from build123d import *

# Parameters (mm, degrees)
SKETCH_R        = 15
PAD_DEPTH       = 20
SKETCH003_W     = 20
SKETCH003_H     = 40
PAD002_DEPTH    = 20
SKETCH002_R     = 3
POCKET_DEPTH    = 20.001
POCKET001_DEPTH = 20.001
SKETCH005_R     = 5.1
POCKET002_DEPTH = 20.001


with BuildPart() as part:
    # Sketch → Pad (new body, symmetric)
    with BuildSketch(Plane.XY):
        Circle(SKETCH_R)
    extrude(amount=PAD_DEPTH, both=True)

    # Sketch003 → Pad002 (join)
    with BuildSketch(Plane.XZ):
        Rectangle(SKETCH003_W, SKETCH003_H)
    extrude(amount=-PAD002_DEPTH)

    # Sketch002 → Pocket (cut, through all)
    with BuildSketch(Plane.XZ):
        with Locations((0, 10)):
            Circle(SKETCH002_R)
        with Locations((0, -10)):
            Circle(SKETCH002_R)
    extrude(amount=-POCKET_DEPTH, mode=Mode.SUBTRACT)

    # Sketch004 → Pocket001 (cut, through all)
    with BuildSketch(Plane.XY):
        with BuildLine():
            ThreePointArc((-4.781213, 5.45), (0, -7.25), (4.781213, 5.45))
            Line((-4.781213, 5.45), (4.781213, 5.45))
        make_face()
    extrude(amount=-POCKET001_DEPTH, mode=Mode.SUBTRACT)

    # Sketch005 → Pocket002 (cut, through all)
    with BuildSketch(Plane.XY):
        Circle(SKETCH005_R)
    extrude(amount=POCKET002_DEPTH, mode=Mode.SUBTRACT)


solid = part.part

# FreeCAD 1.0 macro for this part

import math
import FreeCAD as App
import Part
import Sketcher
from FreeCAD import Vector
Q = App.Units.Quantity


def add_polygon(sketch, points):
    """Adds a closed chain of lines whose ends are joined by coincident constraints."""
    first, n = sketch.GeometryCount, len(points)
    for a, b in zip(points, points[1:] + points[:1]):
        sketch.addGeometry(Part.LineSegment(App.Vector(*a, 0), App.Vector(*b, 0)), False)
    for i in range(n):
        sketch.addConstraint(Sketcher.Constraint("Coincident", first + i, 2, first + (i + 1) % n, 1))

doc = App.newDocument("Part")
body = doc.addObject("PartDesign::Body", "Body")

# Sketch on XY plane
sketch1 = body.newObject("Sketcher::SketchObject", "Sketch")
sketch1.AttachmentSupport = (doc.getObject("XY_Plane"), [""])
sketch1.MapMode = "FlatFace"
sketch1.addGeometry(Part.Circle(Vector(0, 0, 0), Vector(0, 0, 1), 15), False)
sketch1.addConstraint(Sketcher.Constraint("Coincident", 0, 3, -1, 1))
sketch1.addConstraint(Sketcher.Constraint("Diameter", 0, Q("30 mm")))
pad1 = body.newObject("PartDesign::Pad", "Pad")
pad1.Profile = sketch1
pad1.Length = 40
pad1.Midplane = True

# Sketch on XZ plane
sketch2 = body.newObject("Sketcher::SketchObject", "Sketch001")
sketch2.AttachmentSupport = (doc.getObject("XZ_Plane"), [""])
sketch2.MapMode = "FlatFace"
add_polygon(sketch2, [(-10, 20), (-10, -20), (10, -20), (10, 20)])  # lines 0-3
sketch2.addConstraint(Sketcher.Constraint("Vertical", 0))
sketch2.addConstraint(Sketcher.Constraint("Horizontal", 1))
sketch2.addConstraint(Sketcher.Constraint("Vertical", 2))
sketch2.addConstraint(Sketcher.Constraint("Horizontal", 3))
sketch2.addConstraint(Sketcher.Constraint("Symmetric", 0, 2, 2, 2, -1, 1))
sketch2.addConstraint(Sketcher.Constraint("DistanceX", 1, 1, 1, 2, Q("20 mm")))
sketch2.addConstraint(Sketcher.Constraint("DistanceY", 0, 2, 0, 1, Q("40 mm")))
pad2 = body.newObject("PartDesign::Pad", "Pad001")
pad2.Profile = sketch2
pad2.Length = 20
pad2.Reversed = True

# Sketch on XZ plane
sketch3 = body.newObject("Sketcher::SketchObject", "Sketch002")
sketch3.AttachmentSupport = (doc.getObject("XZ_Plane"), [""])
sketch3.MapMode = "FlatFace"
sketch3.addGeometry(Part.Circle(Vector(0, 10, 0), Vector(0, 0, 1), 3), False)
sketch3.addGeometry(Part.Circle(Vector(0, -10, 0), Vector(0, 0, 1), 3), False)
sketch3.addConstraint(Sketcher.Constraint("Equal", 0, 1))
sketch3.addConstraint(Sketcher.Constraint("Symmetric", 0, 3, 1, 3, -1, 1))
sketch3.addConstraint(Sketcher.Constraint("PointOnObject", 0, 3, -2))
sketch3.addConstraint(Sketcher.Constraint("Diameter", 0, Q("6 mm")))
sketch3.addConstraint(Sketcher.Constraint("DistanceY", -1, 1, 0, 3, Q("10 mm")))
pocket1 = body.newObject("PartDesign::Pocket", "Pocket")
pocket1.Profile = sketch3
pocket1.Type = "ThroughAll"

# Sketch on XY plane
sketch4 = body.newObject("Sketcher::SketchObject", "Sketch003")
sketch4.AttachmentSupport = (doc.getObject("XY_Plane"), [""])
sketch4.MapMode = "FlatFace"
sketch4.addGeometry(Part.ArcOfCircle(Part.Circle(Vector(0, 0, 0), Vector(0, 0, 1), 7), math.radians(131), math.radians(409)), False)
sketch4.addGeometry(Part.LineSegment(Vector(5, 5, 0), Vector(-5, 5, 0)), False)
sketch4.addConstraint(Sketcher.Constraint("Coincident", 0, 1, 1, 2))
sketch4.addConstraint(Sketcher.Constraint("Coincident", 1, 1, 0, 2))
sketch4.addConstraint(Sketcher.Constraint("Horizontal", 1))
sketch4.addConstraint(Sketcher.Constraint("Coincident", 0, 3, -1, 1))
sketch4.addConstraint(Sketcher.Constraint("Radius", 0, Q("7.25 mm")))
sketch4.addConstraint(Sketcher.Constraint("DistanceY", -1, 1, 0, 1, Q("5.45 mm")))
pocket2 = body.newObject("PartDesign::Pocket", "Pocket001")
pocket2.Profile = sketch4
pocket2.Type = "ThroughAll"

# Sketch on XY plane
sketch5 = body.newObject("Sketcher::SketchObject", "Sketch004")
sketch5.AttachmentSupport = (doc.getObject("XY_Plane"), [""])
sketch5.MapMode = "FlatFace"
sketch5.addGeometry(Part.Circle(Vector(0, 0, 0), Vector(0, 0, 1), 5), False)
sketch5.addConstraint(Sketcher.Constraint("Coincident", 0, 3, -1, 1))
sketch5.addConstraint(Sketcher.Constraint("Diameter", 0, Q("10.2 mm")))
pocket3 = body.newObject("PartDesign::Pocket", "Pocket002")
pocket3.Profile = sketch5
pocket3.Type = "ThroughAll"
pocket3.Reversed = True

doc.recompute()
